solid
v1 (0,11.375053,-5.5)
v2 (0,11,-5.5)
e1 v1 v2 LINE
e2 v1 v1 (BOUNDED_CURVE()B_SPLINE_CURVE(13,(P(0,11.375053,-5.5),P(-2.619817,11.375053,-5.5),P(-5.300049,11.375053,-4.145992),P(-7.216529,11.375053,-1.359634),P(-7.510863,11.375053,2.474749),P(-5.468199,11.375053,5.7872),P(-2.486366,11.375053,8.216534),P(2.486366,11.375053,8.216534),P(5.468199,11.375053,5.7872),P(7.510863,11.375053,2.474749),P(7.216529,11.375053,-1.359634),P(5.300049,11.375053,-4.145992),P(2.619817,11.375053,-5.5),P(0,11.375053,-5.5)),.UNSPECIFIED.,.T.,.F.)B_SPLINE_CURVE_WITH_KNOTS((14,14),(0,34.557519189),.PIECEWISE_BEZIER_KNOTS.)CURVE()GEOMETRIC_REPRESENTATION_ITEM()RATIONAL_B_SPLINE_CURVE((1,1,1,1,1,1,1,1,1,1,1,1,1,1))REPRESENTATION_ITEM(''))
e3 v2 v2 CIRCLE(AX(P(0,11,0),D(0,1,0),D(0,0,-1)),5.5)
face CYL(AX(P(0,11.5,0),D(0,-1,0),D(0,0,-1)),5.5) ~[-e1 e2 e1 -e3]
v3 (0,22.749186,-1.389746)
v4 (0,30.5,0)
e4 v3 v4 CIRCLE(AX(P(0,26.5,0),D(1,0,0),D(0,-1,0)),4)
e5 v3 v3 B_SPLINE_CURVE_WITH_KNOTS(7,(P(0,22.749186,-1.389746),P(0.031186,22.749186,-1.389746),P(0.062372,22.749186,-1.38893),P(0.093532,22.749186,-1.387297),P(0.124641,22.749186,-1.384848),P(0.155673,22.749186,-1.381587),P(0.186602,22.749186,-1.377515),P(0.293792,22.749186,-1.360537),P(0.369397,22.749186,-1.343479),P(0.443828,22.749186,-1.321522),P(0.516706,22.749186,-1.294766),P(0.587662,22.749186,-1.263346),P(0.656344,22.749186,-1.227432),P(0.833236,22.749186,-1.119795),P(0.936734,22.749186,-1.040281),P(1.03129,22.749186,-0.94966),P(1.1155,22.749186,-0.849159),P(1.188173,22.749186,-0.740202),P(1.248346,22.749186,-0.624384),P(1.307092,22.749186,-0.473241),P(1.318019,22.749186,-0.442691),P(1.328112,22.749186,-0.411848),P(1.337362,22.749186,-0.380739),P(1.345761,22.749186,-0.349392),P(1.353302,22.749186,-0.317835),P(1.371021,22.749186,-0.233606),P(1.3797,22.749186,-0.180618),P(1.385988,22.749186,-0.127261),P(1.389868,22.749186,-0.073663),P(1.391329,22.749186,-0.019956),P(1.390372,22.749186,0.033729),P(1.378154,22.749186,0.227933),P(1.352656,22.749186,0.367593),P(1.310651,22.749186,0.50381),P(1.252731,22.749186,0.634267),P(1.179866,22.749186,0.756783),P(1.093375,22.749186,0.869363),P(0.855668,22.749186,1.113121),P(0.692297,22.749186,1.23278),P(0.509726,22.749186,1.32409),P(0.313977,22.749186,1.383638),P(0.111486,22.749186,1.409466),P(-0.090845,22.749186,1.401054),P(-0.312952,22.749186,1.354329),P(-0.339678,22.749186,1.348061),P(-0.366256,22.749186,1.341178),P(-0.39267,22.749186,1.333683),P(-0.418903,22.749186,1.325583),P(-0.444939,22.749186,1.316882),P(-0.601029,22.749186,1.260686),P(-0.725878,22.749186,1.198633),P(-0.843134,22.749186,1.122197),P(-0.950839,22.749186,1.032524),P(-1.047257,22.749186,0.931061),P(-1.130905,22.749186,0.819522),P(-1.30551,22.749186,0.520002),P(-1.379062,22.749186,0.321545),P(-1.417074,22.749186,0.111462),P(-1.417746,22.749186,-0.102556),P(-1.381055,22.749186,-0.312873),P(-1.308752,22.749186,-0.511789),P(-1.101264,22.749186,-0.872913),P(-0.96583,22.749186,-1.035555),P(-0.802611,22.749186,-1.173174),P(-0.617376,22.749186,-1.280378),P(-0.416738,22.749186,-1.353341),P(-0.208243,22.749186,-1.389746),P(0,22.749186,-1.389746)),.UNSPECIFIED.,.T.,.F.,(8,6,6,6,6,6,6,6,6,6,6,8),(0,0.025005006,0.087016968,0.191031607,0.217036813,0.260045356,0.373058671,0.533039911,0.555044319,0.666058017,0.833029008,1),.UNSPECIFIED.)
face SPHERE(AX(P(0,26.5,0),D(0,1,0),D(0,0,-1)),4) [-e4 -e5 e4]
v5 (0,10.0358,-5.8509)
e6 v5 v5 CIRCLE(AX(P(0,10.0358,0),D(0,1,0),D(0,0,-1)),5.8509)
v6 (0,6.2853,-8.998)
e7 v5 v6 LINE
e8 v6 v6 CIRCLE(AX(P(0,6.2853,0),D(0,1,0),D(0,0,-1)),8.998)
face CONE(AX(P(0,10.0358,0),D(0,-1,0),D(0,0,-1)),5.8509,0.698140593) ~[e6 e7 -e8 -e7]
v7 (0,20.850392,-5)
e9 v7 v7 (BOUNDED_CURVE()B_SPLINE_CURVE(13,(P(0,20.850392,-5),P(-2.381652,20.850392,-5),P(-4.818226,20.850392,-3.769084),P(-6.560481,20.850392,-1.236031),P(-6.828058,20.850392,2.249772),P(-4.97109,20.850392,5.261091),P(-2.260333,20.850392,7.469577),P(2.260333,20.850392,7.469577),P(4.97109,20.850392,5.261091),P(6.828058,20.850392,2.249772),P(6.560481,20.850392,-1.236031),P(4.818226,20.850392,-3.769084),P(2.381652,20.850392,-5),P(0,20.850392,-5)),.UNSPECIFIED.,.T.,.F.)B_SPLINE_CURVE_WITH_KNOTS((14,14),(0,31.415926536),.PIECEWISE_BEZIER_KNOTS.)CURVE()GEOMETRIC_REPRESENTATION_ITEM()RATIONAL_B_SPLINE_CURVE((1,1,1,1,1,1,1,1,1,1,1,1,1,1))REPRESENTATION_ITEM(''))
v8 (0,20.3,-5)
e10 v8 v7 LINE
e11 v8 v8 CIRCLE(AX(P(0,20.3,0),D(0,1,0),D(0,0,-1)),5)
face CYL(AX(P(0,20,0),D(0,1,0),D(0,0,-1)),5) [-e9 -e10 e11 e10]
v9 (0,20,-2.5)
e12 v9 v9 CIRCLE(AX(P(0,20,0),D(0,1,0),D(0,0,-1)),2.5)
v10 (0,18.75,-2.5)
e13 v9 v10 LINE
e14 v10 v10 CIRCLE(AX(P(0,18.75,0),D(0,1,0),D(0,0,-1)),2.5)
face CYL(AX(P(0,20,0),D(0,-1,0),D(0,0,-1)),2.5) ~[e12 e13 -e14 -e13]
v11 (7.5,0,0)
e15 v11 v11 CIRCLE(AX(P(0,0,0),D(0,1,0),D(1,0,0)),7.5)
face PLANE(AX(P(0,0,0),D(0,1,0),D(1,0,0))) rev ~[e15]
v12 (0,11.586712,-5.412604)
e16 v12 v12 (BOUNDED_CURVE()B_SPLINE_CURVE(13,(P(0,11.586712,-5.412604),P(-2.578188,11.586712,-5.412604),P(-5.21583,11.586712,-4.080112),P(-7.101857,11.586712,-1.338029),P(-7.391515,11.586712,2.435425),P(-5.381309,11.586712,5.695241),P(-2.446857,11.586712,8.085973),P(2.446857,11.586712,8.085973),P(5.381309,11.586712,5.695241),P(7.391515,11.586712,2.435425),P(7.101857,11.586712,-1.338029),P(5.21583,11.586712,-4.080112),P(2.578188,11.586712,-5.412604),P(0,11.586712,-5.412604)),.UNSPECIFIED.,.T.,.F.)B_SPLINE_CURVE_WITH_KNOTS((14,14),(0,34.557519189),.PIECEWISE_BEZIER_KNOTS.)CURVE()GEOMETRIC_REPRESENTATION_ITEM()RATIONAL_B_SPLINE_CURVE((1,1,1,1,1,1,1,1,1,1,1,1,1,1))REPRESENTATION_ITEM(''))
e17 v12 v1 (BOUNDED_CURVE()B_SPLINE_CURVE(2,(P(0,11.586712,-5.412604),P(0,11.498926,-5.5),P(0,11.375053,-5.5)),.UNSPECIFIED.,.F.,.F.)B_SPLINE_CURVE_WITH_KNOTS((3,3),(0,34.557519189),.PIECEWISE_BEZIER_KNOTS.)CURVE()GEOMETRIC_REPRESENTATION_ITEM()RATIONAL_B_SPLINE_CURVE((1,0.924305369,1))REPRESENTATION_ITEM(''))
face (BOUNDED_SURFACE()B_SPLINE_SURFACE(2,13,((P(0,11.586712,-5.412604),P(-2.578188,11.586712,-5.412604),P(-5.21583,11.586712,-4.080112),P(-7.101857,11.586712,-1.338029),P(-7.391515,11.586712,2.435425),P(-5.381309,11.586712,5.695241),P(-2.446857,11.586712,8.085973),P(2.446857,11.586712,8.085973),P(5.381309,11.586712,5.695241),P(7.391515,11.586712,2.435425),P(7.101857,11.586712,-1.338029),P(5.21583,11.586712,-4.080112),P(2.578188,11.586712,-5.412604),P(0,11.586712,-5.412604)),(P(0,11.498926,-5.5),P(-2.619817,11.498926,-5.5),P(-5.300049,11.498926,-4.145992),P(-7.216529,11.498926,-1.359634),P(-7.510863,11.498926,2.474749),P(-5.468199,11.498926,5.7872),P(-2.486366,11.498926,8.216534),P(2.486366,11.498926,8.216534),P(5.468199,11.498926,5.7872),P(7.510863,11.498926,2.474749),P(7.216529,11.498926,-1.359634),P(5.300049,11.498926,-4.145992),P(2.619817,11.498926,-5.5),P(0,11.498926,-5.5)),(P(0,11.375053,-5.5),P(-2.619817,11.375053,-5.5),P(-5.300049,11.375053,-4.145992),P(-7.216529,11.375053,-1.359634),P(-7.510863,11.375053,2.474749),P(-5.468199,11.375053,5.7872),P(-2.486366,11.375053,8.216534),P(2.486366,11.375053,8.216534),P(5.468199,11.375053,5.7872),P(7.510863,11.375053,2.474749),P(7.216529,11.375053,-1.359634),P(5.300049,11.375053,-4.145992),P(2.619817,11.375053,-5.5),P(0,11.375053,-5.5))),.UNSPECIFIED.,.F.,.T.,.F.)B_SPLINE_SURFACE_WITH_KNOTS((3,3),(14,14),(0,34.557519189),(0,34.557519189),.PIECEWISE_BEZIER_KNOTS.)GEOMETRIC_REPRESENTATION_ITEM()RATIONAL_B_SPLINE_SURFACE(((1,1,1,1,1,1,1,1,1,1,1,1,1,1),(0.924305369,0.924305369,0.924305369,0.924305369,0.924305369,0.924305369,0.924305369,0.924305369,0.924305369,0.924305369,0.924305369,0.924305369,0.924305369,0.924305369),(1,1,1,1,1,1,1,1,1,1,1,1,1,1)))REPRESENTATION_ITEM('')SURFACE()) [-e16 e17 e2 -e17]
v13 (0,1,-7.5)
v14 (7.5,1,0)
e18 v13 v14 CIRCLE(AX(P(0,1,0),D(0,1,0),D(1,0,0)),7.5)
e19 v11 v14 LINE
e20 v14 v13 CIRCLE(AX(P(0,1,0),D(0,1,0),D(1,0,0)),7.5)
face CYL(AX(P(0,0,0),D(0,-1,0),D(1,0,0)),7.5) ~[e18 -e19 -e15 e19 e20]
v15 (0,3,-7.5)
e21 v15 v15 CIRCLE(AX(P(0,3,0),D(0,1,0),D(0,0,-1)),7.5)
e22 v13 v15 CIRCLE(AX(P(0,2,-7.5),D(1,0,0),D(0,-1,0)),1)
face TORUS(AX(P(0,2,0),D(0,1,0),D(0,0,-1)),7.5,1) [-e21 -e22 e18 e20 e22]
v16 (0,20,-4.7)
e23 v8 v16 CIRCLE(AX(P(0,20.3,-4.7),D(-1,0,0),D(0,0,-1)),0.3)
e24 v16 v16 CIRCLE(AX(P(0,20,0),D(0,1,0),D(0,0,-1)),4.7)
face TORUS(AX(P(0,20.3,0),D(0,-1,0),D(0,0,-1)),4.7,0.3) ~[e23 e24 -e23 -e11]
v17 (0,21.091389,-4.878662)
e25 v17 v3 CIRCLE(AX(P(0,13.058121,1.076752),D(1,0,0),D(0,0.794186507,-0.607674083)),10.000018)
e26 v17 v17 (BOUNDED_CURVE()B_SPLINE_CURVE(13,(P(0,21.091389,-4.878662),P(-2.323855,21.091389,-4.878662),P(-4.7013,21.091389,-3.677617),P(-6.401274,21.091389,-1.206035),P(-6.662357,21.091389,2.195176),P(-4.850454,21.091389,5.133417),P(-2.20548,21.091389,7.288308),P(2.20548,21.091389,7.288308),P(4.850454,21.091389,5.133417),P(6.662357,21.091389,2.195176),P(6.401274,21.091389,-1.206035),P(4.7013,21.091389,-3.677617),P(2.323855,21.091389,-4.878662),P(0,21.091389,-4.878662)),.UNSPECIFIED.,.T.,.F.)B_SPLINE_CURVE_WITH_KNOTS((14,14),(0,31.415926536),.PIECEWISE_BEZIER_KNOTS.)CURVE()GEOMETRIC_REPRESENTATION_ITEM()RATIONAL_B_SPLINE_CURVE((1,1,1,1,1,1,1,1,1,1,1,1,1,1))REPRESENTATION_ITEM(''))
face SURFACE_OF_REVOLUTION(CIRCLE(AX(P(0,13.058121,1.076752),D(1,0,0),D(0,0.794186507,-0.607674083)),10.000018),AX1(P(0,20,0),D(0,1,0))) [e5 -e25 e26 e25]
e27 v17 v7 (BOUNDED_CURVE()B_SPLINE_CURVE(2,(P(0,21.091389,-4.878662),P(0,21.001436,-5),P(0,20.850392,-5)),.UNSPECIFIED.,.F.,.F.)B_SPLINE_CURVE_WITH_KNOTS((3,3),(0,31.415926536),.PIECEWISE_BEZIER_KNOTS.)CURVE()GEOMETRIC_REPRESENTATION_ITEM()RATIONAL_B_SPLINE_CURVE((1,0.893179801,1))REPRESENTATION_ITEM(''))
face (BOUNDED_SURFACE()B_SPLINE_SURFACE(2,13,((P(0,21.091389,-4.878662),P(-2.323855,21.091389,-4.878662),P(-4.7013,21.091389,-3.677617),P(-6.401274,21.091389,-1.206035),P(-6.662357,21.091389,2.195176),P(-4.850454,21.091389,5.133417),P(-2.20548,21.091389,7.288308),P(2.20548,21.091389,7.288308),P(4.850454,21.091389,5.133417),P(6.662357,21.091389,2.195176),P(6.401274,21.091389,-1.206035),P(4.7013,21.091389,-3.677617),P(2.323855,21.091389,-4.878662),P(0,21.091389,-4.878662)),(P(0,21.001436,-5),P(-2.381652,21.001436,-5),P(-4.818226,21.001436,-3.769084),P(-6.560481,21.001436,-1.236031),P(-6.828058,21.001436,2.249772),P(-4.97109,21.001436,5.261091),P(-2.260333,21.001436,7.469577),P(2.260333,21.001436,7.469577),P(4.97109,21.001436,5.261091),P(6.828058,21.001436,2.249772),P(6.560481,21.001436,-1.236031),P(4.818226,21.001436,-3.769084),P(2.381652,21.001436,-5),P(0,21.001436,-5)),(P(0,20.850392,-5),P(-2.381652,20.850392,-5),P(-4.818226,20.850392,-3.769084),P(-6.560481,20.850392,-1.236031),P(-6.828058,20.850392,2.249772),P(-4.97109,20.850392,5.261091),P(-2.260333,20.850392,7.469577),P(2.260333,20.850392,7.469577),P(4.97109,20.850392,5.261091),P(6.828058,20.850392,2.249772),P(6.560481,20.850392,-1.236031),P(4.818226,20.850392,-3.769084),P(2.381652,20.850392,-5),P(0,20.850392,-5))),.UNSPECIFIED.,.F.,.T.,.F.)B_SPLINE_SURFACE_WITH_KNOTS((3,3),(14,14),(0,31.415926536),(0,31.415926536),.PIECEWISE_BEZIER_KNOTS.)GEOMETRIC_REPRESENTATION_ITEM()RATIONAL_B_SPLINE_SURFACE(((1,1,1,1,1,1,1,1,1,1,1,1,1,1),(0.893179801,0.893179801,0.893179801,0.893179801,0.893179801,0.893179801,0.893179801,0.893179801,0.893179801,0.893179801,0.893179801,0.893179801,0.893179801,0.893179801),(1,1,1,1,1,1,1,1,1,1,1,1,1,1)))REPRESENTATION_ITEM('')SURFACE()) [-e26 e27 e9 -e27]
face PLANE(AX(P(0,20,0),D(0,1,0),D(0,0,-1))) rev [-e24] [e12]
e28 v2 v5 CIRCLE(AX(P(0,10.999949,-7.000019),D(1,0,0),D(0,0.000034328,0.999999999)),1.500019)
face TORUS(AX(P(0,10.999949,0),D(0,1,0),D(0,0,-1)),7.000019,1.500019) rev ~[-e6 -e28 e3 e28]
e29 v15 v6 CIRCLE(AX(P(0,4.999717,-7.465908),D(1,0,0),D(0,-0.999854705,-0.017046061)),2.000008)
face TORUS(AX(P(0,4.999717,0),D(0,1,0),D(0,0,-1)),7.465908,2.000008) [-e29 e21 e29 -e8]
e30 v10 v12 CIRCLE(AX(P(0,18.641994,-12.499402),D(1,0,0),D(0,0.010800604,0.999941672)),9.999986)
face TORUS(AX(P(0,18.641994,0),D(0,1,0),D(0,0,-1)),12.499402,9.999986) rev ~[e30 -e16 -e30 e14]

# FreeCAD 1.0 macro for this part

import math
import FreeCAD as App
import Part
import Sketcher

V = App.Vector
Q = App.Units.Quantity


def edges_at(feature, points):
    """Names of the edges that pass closest to the given points."""
    edges = feature.Shape.Edges
    near = lambda p: min(range(len(edges)), key=lambda i: edges[i].distToShape(Part.Vertex(*p))[0])
    return sorted({f"Edge{near(p) + 1}" for p in points})

doc = App.newDocument("Part")
params = doc.addObject("Spreadsheet::Sheet", "Params")
for row, (alias, value) in enumerate([
    ("sketch1_diameter", "15 mm"),
    ("pad1_length", "1 mm"),
    ("sketch2_radius", "1 mm"),
    ("sketch2_height", "7.5 mm"),
    ("revolution_angle", "360 deg"),
    ("sketch3_radius", "2 mm"),
    ("sketch3_radius2", "1.5 mm"),
    ("sketch3_width", "0.5 mm"),
    ("revolution2_angle", "360 deg"),
    ("sketch4_radius", "10 mm"),
    ("sketch4_height", "5.5 mm"),
    ("sketch4_height2", "2.5 mm"),
    ("sketch4_width", "1.25 mm"),
    ("sketch4_width2", "8.5 mm"),
    ("revolution3_angle", "360 deg"),
    ("sketch5_radius", "10 mm"),
    ("sketch5_width", "3 mm"),
    ("sketch5_width2", "1 mm"),
    ("sketch5_height", "5 mm"),
    ("revolution4_angle", "360 deg"),
    ("sketch6_radius", "4 mm"),
    ("revolution5_angle", "360 deg"),
    ("fillet_radius", "0.3 mm"),
], start=1):
    params.set(f"A{row}", alias)
    params.set(f"B{row}", "=" + value)
    params.setAlias(f"B{row}", alias)

body = doc.addObject("PartDesign::Body", "Body")

# Sketch on XZ plane
sketch1 = body.newObject("Sketcher::SketchObject", "Sketch")
sketch1.AttachmentSupport = (doc.getObject("XZ_Plane"), [""])
sketch1.MapMode = "FlatFace"
sketch1.addGeometry(Part.Circle(V(0, 0, 0), V(0, 0, 1), 8), False)
sketch1.addConstraint([
    Sketcher.Constraint("Coincident", 0, 3, -1, 1),
    Sketcher.Constraint("Diameter", 0, 15.0),
])
sketch1.setExpression("Constraints[1]", "Params.sketch1_diameter")
pad1 = body.newObject("PartDesign::Pad", "Pad")
pad1.Profile = sketch1
pad1.setExpression("Length", "Params.pad1_length")
pad1.Reversed = True

# Sketch on YZ plane
sketch2 = body.newObject("Sketcher::SketchObject", "Sketch001")
sketch2.AttachmentSupport = (doc.getObject("YZ_Plane"), [""])
sketch2.MapMode = "FlatFace"
sketch2.addGeometry([
    Part.LineSegment(V(3, 0, 0), V(1, 0, 0)),
    Part.LineSegment(V(1, 0, 0), V(1, -7.5, 0)),
    Part.ArcOfCircle(Part.Circle(V(2, -7.5, 0), V(0, 0, 1), 1), math.radians(180), math.radians(360)),
    Part.LineSegment(V(3, -7.5, 0), V(3, 0, 0)),
], False)
sketch2.addConstraint([
    Sketcher.Constraint("Coincident", 0, 2, 1, 1),
    Sketcher.Constraint("Tangent", 1, 2, 2, 1),
    Sketcher.Constraint("Tangent", 2, 2, 3, 1),
    Sketcher.Constraint("Coincident", 3, 2, 0, 1),
    Sketcher.Constraint("Horizontal", 0),
    Sketcher.Constraint("Vertical", 1),
    Sketcher.Constraint("Vertical", 3),
    Sketcher.Constraint("PointOnObject", 0, 2, -1),
    Sketcher.Constraint("Radius", 2, 1.0),
    Sketcher.Constraint("DistanceY", 1, 2, 1, 1, 7.5),
    Sketcher.Constraint("DistanceX", -1, 1, 2, 3, 2.0),
])
sketch2.setExpression("Constraints[8]", "Params.sketch2_radius")
sketch2.setExpression("Constraints[9]", "Params.sketch2_height")
revolution = body.newObject("PartDesign::Revolution", "Revolution")
revolution.Profile = sketch2
revolution.ReferenceAxis = (sketch2, ["H_Axis"])
revolution.setExpression("Angle", "Params.revolution_angle")

# Sketch on YZ plane
sketch3 = body.newObject("Sketcher::SketchObject", "Sketch002")
sketch3.AttachmentSupport = (doc.getObject("YZ_Plane"), [""])
sketch3.MapMode = "FlatFace"
sketch3.addGeometry([
    Part.LineSegment(V(11.5, 0, 0), V(3, 0, 0)),  # 0
    Part.LineSegment(V(3, 0, 0), V(3, -7.5, 0)),  # 1
    Part.ArcOfCircle(Part.Circle(V(5, -7.5, 0), V(0, 0, 1), 2), math.radians(-179), math.radians(-50)),  # 2
    Part.LineSegment(V(6.3, -9, 0), V(10, -5.9, 0)),  # 3
    Part.ArcOfCircle(Part.Circle(V(11, -7, 0), V(0, 0, 1), 1.5), math.radians(90), math.radians(130)),  # 4
    Part.LineSegment(V(11, -5.5, 0), V(11.5, -5.5, 0)),  # 5
    Part.LineSegment(V(11.5, -5.5, 0), V(11.5, 0, 0)),  # 6
], False)
sketch3.addConstraint([
    Sketcher.Constraint("Coincident", 0, 2, 1, 1),
    Sketcher.Constraint("Coincident", 1, 2, 2, 1),
    Sketcher.Constraint("Tangent", 2, 2, 3, 1),
    Sketcher.Constraint("Tangent", 3, 2, 4, 2),
    Sketcher.Constraint("Tangent", 4, 1, 5, 1),
    Sketcher.Constraint("Coincident", 5, 2, 6, 1),
    Sketcher.Constraint("Coincident", 6, 2, 0, 1),
    Sketcher.Constraint("Horizontal", 0),
    Sketcher.Constraint("Vertical", 1),
    Sketcher.Constraint("Horizontal", 5),
    Sketcher.Constraint("Vertical", 6),
    Sketcher.Constraint("PointOnObject", 0, 2, -1),
    Sketcher.Constraint("Radius", 2, 2.0),
    Sketcher.Constraint("Radius", 4, 1.5),
    Sketcher.Constraint("Angle", 3, Q("40.0005 deg")),
    Sketcher.Constraint("DistanceX", 5, 1, 5, 2, 0.5),
    Sketcher.Constraint("DistanceY", 4, 3, -1, 1, 7.0),
    Sketcher.Constraint("DistanceX", -1, 1, 0, 2, 3.0),
    Sketcher.Constraint("DistanceY", 1, 2, 4, 1, 2.0),
    Sketcher.Constraint("DistanceX", -1, 1, 5, 2, 11.5),
])
sketch3.setExpression("Constraints[12]", "Params.sketch3_radius")
sketch3.setExpression("Constraints[13]", "Params.sketch3_radius2")
sketch3.setExpression("Constraints[15]", "Params.sketch3_width")
revolution2 = body.newObject("PartDesign::Revolution", "Revolution001")
revolution2.Profile = sketch3
revolution2.ReferenceAxis = (sketch3, ["H_Axis"])
revolution2.setExpression("Angle", "Params.revolution2_angle")

# Sketch on YZ plane
sketch4 = body.newObject("Sketcher::SketchObject", "Sketch003")
sketch4.AttachmentSupport = (doc.getObject("YZ_Plane"), [""])
sketch4.MapMode = "FlatFace"
sketch4.addGeometry([
    Part.LineSegment(V(20, 0, 0), V(11.5, 0, 0)),  # 0
    Part.LineSegment(V(11.5, 0, 0), V(11.5, -5.5, 0)),  # 1
    Part.ArcOfCircle(Part.Circle(V(18.6, -12.5, 0), V(0, 0, 1), 10), math.radians(89), math.radians(136)),  # 2
    Part.LineSegment(V(18.8, -2.5, 0), V(20, -2.5, 0)),  # 3
    Part.LineSegment(V(20, -2.5, 0), V(20, 0, 0)),  # 4
], False)
sketch4.addConstraint([
    Sketcher.Constraint("Coincident", 0, 2, 1, 1),
    Sketcher.Constraint("Coincident", 1, 2, 2, 2),
    Sketcher.Constraint("Coincident", 2, 1, 3, 1),
    Sketcher.Constraint("Coincident", 3, 2, 4, 1),
    Sketcher.Constraint("Coincident", 4, 2, 0, 1),
    Sketcher.Constraint("Horizontal", 0),
    Sketcher.Constraint("Vertical", 1),
    Sketcher.Constraint("Horizontal", 3),
    Sketcher.Constraint("Vertical", 4),
    Sketcher.Constraint("PointOnObject", 0, 2, -1),
    Sketcher.Constraint("Radius", 2, 10.0),
    Sketcher.Constraint("DistanceY", 1, 2, 1, 1, 5.5),
    Sketcher.Constraint("DistanceY", 4, 1, 4, 2, 2.5),
    Sketcher.Constraint("DistanceX", -1, 1, 3, 2, 20.0),
    Sketcher.Constraint("DistanceX", 3, 1, 3, 2, 1.25),
    Sketcher.Constraint("DistanceX", 0, 2, 0, 1, 8.5),
])
sketch4.setExpression("Constraints[10]", "Params.sketch4_radius")
sketch4.setExpression("Constraints[11]", "Params.sketch4_height")
sketch4.setExpression("Constraints[12]", "Params.sketch4_height2")
sketch4.setExpression("Constraints[14]", "Params.sketch4_width")
sketch4.setExpression("Constraints[15]", "Params.sketch4_width2")
revolution3 = body.newObject("PartDesign::Revolution", "Revolution002")
revolution3.Profile = sketch4
revolution3.ReferenceAxis = (sketch4, ["H_Axis"])
revolution3.setExpression("Angle", "Params.revolution3_angle")

# Sketch on YZ plane
sketch5 = body.newObject("Sketcher::SketchObject", "Sketch004")
sketch5.AttachmentSupport = (doc.getObject("YZ_Plane"), [""])
sketch5.MapMode = "FlatFace"
sketch5.addGeometry([
    Part.LineSegment(V(23, 0, 0), V(20, 0, 0)),
    Part.LineSegment(V(20, 0, 0), V(20, -5, 0)),
    Part.LineSegment(V(20, -5, 0), V(21, -5, 0)),
    Part.ArcOfCircle(Part.Circle(V(13.1, 1.1, 0), V(0, 0, 1), 10), math.radians(-37), math.radians(-6)),
], False)
sketch5.addConstraint([
    Sketcher.Constraint("Coincident", 0, 2, 1, 1),
    Sketcher.Constraint("Coincident", 1, 2, 2, 1),
    Sketcher.Constraint("Coincident", 2, 2, 3, 1),
    Sketcher.Constraint("Coincident", 3, 2, 0, 1),
    Sketcher.Constraint("Horizontal", 0),
    Sketcher.Constraint("Vertical", 1),
    Sketcher.Constraint("Horizontal", 2),
    Sketcher.Constraint("PointOnObject", 0, 2, -1),
    Sketcher.Constraint("Radius", 3, 10.0),
    Sketcher.Constraint("DistanceX", 0, 2, 0, 1, 3.0),
    Sketcher.Constraint("DistanceX", 2, 1, 2, 2, 1.0),
    Sketcher.Constraint("DistanceY", 1, 2, 1, 1, 5.0),
    Sketcher.Constraint("DistanceX", -1, 1, 0, 2, 20.0),
])
sketch5.setExpression("Constraints[8]", "Params.sketch5_radius")
sketch5.setExpression("Constraints[9]", "Params.sketch5_width")
sketch5.setExpression("Constraints[10]", "Params.sketch5_width2")
sketch5.setExpression("Constraints[11]", "Params.sketch5_height")
revolution4 = body.newObject("PartDesign::Revolution", "Revolution003")
revolution4.Profile = sketch5
revolution4.ReferenceAxis = (sketch5, ["H_Axis"])
revolution4.setExpression("Angle", "Params.revolution4_angle")

# Sketch on YZ plane
sketch6 = body.newObject("Sketcher::SketchObject", "Sketch005")
sketch6.AttachmentSupport = (doc.getObject("YZ_Plane"), [""])
sketch6.MapMode = "FlatFace"
sketch6.addGeometry([
    Part.LineSegment(V(30.5, 0, 0), V(22.5, 0, 0)),
    Part.ArcOfCircle(Part.Circle(V(26.5, 0, 0), V(0, 0, 1), 4), math.radians(180), math.radians(360)),
], False)
sketch6.addConstraint([
    Sketcher.Constraint("Coincident", 0, 1, 1, 2),
    Sketcher.Constraint("Coincident", 1, 1, 0, 2),
    Sketcher.Constraint("Horizontal", 0),
    Sketcher.Constraint("PointOnObject", 1, 3, -1),
    Sketcher.Constraint("PointOnObject", 0, 1, -1),
    Sketcher.Constraint("Radius", 1, 4.0),
    Sketcher.Constraint("DistanceX", -1, 1, 1, 3, 26.5),
])
sketch6.setExpression("Constraints[5]", "Params.sketch6_radius")
revolution5 = body.newObject("PartDesign::Revolution", "Revolution004")
revolution5.Profile = sketch6
revolution5.ReferenceAxis = (sketch6, ["H_Axis"])
revolution5.setExpression("Angle", "Params.revolution5_angle")
doc.recompute()

fillet = body.newObject("PartDesign::Fillet", "Fillet")
fillet.Base = (revolution5, edges_at(revolution5, [(-4.662, 21, -1.808), (-4.662, 20, -1.808), (-5.128, 11.5, -1.989)]))
fillet.setExpression("Radius", "Params.fillet_radius")

doc.recompute()
